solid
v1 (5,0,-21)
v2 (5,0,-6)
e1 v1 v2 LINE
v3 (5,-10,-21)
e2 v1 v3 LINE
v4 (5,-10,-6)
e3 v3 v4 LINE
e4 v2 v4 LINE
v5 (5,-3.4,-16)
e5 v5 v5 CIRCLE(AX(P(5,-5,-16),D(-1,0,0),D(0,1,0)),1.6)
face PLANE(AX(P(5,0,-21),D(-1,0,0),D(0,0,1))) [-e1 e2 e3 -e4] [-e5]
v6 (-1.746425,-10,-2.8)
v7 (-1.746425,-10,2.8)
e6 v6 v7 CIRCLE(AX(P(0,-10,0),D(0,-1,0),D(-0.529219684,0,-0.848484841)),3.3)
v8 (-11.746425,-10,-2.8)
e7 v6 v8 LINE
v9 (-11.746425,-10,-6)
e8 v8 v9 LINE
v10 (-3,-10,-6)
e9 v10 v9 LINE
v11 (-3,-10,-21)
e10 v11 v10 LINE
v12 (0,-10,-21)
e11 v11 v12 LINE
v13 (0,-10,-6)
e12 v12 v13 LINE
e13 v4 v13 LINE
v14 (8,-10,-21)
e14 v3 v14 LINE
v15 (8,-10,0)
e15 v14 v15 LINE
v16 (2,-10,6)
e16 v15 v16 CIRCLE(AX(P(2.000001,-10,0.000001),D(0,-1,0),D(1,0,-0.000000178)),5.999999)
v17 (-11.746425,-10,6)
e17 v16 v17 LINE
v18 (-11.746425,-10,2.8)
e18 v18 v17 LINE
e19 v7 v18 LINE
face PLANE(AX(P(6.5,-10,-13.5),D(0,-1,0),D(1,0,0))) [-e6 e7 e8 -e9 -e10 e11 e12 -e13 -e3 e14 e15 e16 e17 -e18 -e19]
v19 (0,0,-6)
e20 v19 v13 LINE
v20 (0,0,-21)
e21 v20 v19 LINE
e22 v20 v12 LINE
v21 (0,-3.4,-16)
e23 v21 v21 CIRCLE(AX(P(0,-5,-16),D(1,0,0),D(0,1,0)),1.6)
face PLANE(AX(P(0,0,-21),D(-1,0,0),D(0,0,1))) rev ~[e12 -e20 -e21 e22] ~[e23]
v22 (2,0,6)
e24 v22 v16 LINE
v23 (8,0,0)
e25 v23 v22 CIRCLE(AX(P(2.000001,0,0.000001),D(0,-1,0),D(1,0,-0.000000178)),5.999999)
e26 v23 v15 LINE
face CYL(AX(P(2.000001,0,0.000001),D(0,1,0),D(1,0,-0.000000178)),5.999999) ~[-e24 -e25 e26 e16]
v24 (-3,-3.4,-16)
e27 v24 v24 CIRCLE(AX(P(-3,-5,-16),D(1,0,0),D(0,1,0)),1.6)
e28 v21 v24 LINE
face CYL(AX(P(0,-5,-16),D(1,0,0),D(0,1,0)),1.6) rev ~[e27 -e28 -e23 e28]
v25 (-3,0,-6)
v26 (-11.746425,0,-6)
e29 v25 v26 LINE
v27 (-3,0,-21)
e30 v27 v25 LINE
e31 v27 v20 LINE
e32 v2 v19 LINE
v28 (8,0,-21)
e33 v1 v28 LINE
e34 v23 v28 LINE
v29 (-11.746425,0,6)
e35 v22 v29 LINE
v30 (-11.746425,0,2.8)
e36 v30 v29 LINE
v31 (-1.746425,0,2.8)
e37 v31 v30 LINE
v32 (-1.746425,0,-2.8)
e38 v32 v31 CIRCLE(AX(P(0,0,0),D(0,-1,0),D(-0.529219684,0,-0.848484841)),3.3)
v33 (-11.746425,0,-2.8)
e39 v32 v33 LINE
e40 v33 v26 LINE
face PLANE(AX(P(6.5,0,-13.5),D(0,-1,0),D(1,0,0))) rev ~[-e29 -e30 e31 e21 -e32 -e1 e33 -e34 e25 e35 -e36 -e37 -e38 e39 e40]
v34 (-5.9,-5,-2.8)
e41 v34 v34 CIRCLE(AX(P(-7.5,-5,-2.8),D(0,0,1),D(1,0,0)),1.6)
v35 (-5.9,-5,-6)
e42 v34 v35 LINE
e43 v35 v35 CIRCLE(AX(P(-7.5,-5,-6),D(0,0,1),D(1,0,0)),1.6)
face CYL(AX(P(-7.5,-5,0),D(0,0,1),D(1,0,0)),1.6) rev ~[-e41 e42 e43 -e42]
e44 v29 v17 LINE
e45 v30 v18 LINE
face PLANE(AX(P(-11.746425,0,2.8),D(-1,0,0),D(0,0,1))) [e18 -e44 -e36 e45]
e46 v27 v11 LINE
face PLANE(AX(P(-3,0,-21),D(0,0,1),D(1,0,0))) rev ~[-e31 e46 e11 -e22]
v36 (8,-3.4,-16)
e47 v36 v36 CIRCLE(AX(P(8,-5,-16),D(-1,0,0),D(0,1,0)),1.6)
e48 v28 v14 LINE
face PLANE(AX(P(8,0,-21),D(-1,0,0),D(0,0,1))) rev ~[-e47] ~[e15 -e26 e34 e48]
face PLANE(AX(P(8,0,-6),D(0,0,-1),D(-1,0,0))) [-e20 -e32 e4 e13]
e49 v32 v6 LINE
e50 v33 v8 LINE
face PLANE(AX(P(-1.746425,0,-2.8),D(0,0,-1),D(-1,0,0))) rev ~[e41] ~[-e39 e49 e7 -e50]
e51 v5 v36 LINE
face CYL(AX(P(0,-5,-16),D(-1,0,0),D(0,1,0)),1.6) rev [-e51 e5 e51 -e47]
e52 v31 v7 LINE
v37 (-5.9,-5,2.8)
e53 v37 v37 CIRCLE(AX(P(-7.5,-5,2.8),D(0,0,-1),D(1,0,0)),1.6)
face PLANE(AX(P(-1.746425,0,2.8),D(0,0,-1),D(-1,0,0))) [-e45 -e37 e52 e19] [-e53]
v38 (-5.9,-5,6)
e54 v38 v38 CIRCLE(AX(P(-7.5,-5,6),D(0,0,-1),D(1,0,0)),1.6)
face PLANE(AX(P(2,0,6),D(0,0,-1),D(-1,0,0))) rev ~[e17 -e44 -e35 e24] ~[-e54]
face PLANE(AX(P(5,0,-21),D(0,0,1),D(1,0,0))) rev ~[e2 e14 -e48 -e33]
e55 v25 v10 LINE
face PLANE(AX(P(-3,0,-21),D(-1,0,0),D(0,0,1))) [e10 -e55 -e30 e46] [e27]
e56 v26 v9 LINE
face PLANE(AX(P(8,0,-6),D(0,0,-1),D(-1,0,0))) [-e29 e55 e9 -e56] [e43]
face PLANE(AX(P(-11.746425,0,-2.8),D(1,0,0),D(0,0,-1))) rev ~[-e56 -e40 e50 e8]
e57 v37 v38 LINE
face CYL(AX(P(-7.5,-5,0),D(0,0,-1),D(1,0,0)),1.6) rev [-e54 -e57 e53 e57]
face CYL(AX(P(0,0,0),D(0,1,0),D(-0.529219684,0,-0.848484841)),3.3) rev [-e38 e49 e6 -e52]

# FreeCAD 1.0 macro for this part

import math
import FreeCAD as App
import Part
import Sketcher

V = App.Vector
Q = App.Units.Quantity


def add_polygon(sketch, points):
    """Adds a closed chain of lines whose ends are joined by coincident constraints."""
    first, n = sketch.GeometryCount, len(points)
    for a, b in zip(points, points[1:] + points[:1]):
        sketch.addGeometry(Part.LineSegment(App.Vector(*a, 0), App.Vector(*b, 0)), False)
    for i in range(n):
        sketch.addConstraint(Sketcher.Constraint("Coincident", first + i, 2, first + (i + 1) % n, 1))

doc = App.newDocument("Part")
params = doc.addObject("Spreadsheet::Sheet", "Params")
for row, (alias, value) in enumerate([
    ("sketch1_radius", "5.999999 mm"),
    ("sketch1_radius2", "3.3 mm"),
    ("sketch1_width", "10 mm"),
    ("sketch1_height", "3.2 mm"),
    ("pad1_length", "10 mm"),
    ("sketch2_diameter", "3.2 mm"),
    ("sketch3_width", "3 mm"),
    ("sketch3_height", "15 mm"),
    ("pad2_length", "10 mm"),
    ("sketch4_diameter", "3.2 mm"),
], start=1):
    params.set(f"A{row}", alias)
    params.set(f"B{row}", "=" + value)
    params.setAlias(f"B{row}", alias)

body = doc.addObject("PartDesign::Body", "Body")

# Sketch on XZ plane
sketch1 = body.newObject("Sketcher::SketchObject", "Sketch")
sketch1.AttachmentSupport = (doc.getObject("XZ_Plane"), [""])
sketch1.MapMode = "FlatFace"
sketch1.addGeometry(Part.LineSegment(V(-11.7, -6, 0), V(8, -6, 0)), False)
sketch1.addGeometry(Part.LineSegment(V(8, -6, 0), V(8, 0, 0)), False)
sketch1.addGeometry(Part.ArcOfCircle(Part.Circle(V(2, 0, 0), V(0, 0, 1), 6), math.radians(0), math.radians(90)), False)
sketch1.addGeometry(Part.LineSegment(V(2, 6, 0), V(-11.7, 6, 0)), False)
sketch1.addGeometry(Part.LineSegment(V(-11.7, 6, 0), V(-11.7, 2.8, 0)), False)
sketch1.addGeometry(Part.LineSegment(V(-11.7, 2.8, 0), V(-1.7, 2.8, 0)), False)
sketch1.addGeometry(Part.ArcOfCircle(Part.Circle(V(0, 0, 0), V(0, 0, 1), 3.3), math.radians(-122), math.radians(122)), False)
sketch1.addGeometry(Part.LineSegment(V(-1.7, -2.8, 0), V(-11.7, -2.8, 0)), False)
sketch1.addGeometry(Part.LineSegment(V(-11.7, -2.8, 0), V(-11.7, -6, 0)), False)
sketch1.addConstraint(Sketcher.Constraint("Coincident", 0, 2, 1, 1))
sketch1.addConstraint(Sketcher.Constraint("Tangent", 1, 2, 2, 1))
sketch1.addConstraint(Sketcher.Constraint("Tangent", 2, 2, 3, 1))
sketch1.addConstraint(Sketcher.Constraint("Coincident", 3, 2, 4, 1))
sketch1.addConstraint(Sketcher.Constraint("Coincident", 4, 2, 5, 1))
sketch1.addConstraint(Sketcher.Constraint("Coincident", 5, 2, 6, 2))
sketch1.addConstraint(Sketcher.Constraint("Coincident", 6, 1, 7, 1))
sketch1.addConstraint(Sketcher.Constraint("Coincident", 7, 2, 8, 1))
sketch1.addConstraint(Sketcher.Constraint("Coincident", 8, 2, 0, 1))
sketch1.addConstraint(Sketcher.Constraint("Horizontal", 0))
sketch1.addConstraint(Sketcher.Constraint("Vertical", 1))
sketch1.addConstraint(Sketcher.Constraint("Horizontal", 3))
sketch1.addConstraint(Sketcher.Constraint("Vertical", 4))
sketch1.addConstraint(Sketcher.Constraint("Horizontal", 5))
sketch1.addConstraint(Sketcher.Constraint("Horizontal", 7))
sketch1.addConstraint(Sketcher.Constraint("Vertical", 8))
sketch1.addConstraint(Sketcher.Constraint("Coincident", 6, 3, -1, 1))
sketch1.addConstraint(Sketcher.Constraint("Symmetric", 4, 2, 7, 2, -1))
sketch1.addConstraint(Sketcher.Constraint("PointOnObject", 2, 3, -1))
sketch1.addConstraint(Sketcher.Constraint("Equal", 4, 8))
sketch1.addConstraint(Sketcher.Constraint("Radius", 2, Q("5.999999 mm")))
sketch1.addConstraint(Sketcher.Constraint("Radius", 6, Q("3.3 mm")))
sketch1.addConstraint(Sketcher.Constraint("DistanceX", 5, 1, 5, 2, Q("10 mm")))
sketch1.addConstraint(Sketcher.Constraint("DistanceY", 4, 2, 4, 1, Q("3.2 mm")))
sketch1.addConstraint(Sketcher.Constraint("DistanceX", -1, 1, 2, 3, Q("2.000001 mm")))
sketch1.setExpression("Constraints[20]", "Params.sketch1_radius")
sketch1.setExpression("Constraints[21]", "Params.sketch1_radius2")
sketch1.setExpression("Constraints[22]", "Params.sketch1_width")
sketch1.setExpression("Constraints[23]", "Params.sketch1_height")
pad1 = body.newObject("PartDesign::Pad", "Pad")
pad1.Profile = sketch1
pad1.setExpression("Length", "Params.pad1_length")

# Sketch on XY plane
sketch2 = body.newObject("Sketcher::SketchObject", "Sketch001")
sketch2.AttachmentSupport = (doc.getObject("XY_Plane"), [""])
sketch2.MapMode = "FlatFace"
sketch2.addGeometry(Part.Circle(V(-7.5, -5, 0), V(0, 0, 1), 1.6), False)
sketch2.addConstraint(Sketcher.Constraint("Diameter", 0, Q("3.2 mm")))
sketch2.addConstraint(Sketcher.Constraint("DistanceY", 0, 3, -1, 1, Q("5 mm")))
sketch2.addConstraint(Sketcher.Constraint("DistanceX", 0, 3, -1, 1, Q("7.5 mm")))
sketch2.setExpression("Constraints[0]", "Params.sketch2_diameter")
pocket1 = body.newObject("PartDesign::Pocket", "Pocket")
pocket1.Profile = sketch2
pocket1.Type = "ThroughAll"
pocket1.Midplane = True

# Sketch on XZ plane
sketch3 = body.newObject("Sketcher::SketchObject", "Sketch002")
sketch3.AttachmentSupport = (doc.getObject("XZ_Plane"), [""])
sketch3.MapMode = "FlatFace"
add_polygon(sketch3, [(5, -6), (5, -21), (8, -21), (8, -6)])  # lines 0-3
add_polygon(sketch3, [(-3, -6), (-3, -21), (0, -21), (0, -6)])  # lines 4-7
sketch3.addConstraint(Sketcher.Constraint("Vertical", 0))
sketch3.addConstraint(Sketcher.Constraint("Horizontal", 1))
sketch3.addConstraint(Sketcher.Constraint("Vertical", 2))
sketch3.addConstraint(Sketcher.Constraint("Horizontal", 3))
sketch3.addConstraint(Sketcher.Constraint("Vertical", 4))
sketch3.addConstraint(Sketcher.Constraint("Horizontal", 5))
sketch3.addConstraint(Sketcher.Constraint("Vertical", 6))
sketch3.addConstraint(Sketcher.Constraint("Horizontal", 7))
sketch3.addConstraint(Sketcher.Constraint("PointOnObject", 5, 2, -2))
sketch3.addConstraint(Sketcher.Constraint("Horizontal", 1, 2, 4, 2))
sketch3.addConstraint(Sketcher.Constraint("Horizontal", 3, 2, 6, 2))
sketch3.addConstraint(Sketcher.Constraint("Equal", 3, 5))
sketch3.addConstraint(Sketcher.Constraint("DistanceX", 1, 1, 1, 2, Q("3 mm")))
sketch3.addConstraint(Sketcher.Constraint("DistanceY", 0, 2, 0, 1, Q("15 mm")))
sketch3.addConstraint(Sketcher.Constraint("DistanceX", -1, 1, 0, 2, Q("5 mm")))
sketch3.addConstraint(Sketcher.Constraint("DistanceY", 0, 2, -1, 1, Q("21 mm")))
sketch3.setExpression("Constraints[20]", "Params.sketch3_width")
sketch3.setExpression("Constraints[21]", "Params.sketch3_height")
pad2 = body.newObject("PartDesign::Pad", "Pad001")
pad2.Profile = sketch3
pad2.setExpression("Length", "Params.pad2_length")

# Sketch on YZ plane
sketch4 = body.newObject("Sketcher::SketchObject", "Sketch003")
sketch4.AttachmentSupport = (doc.getObject("YZ_Plane"), [""])
sketch4.MapMode = "FlatFace"
sketch4.addGeometry(Part.Circle(V(-5, -16, 0), V(0, 0, 1), 1.6), False)
sketch4.addConstraint(Sketcher.Constraint("Diameter", 0, Q("3.2 mm")))
sketch4.addConstraint(Sketcher.Constraint("DistanceX", 0, 3, -1, 1, Q("5 mm")))
sketch4.addConstraint(Sketcher.Constraint("DistanceY", 0, 3, -1, 1, Q("16 mm")))
sketch4.setExpression("Constraints[0]", "Params.sketch4_diameter")
pocket2 = body.newObject("PartDesign::Pocket", "Pocket001")
pocket2.Profile = sketch4
pocket2.Type = "ThroughAll"
pocket2.Midplane = True

doc.recompute()
